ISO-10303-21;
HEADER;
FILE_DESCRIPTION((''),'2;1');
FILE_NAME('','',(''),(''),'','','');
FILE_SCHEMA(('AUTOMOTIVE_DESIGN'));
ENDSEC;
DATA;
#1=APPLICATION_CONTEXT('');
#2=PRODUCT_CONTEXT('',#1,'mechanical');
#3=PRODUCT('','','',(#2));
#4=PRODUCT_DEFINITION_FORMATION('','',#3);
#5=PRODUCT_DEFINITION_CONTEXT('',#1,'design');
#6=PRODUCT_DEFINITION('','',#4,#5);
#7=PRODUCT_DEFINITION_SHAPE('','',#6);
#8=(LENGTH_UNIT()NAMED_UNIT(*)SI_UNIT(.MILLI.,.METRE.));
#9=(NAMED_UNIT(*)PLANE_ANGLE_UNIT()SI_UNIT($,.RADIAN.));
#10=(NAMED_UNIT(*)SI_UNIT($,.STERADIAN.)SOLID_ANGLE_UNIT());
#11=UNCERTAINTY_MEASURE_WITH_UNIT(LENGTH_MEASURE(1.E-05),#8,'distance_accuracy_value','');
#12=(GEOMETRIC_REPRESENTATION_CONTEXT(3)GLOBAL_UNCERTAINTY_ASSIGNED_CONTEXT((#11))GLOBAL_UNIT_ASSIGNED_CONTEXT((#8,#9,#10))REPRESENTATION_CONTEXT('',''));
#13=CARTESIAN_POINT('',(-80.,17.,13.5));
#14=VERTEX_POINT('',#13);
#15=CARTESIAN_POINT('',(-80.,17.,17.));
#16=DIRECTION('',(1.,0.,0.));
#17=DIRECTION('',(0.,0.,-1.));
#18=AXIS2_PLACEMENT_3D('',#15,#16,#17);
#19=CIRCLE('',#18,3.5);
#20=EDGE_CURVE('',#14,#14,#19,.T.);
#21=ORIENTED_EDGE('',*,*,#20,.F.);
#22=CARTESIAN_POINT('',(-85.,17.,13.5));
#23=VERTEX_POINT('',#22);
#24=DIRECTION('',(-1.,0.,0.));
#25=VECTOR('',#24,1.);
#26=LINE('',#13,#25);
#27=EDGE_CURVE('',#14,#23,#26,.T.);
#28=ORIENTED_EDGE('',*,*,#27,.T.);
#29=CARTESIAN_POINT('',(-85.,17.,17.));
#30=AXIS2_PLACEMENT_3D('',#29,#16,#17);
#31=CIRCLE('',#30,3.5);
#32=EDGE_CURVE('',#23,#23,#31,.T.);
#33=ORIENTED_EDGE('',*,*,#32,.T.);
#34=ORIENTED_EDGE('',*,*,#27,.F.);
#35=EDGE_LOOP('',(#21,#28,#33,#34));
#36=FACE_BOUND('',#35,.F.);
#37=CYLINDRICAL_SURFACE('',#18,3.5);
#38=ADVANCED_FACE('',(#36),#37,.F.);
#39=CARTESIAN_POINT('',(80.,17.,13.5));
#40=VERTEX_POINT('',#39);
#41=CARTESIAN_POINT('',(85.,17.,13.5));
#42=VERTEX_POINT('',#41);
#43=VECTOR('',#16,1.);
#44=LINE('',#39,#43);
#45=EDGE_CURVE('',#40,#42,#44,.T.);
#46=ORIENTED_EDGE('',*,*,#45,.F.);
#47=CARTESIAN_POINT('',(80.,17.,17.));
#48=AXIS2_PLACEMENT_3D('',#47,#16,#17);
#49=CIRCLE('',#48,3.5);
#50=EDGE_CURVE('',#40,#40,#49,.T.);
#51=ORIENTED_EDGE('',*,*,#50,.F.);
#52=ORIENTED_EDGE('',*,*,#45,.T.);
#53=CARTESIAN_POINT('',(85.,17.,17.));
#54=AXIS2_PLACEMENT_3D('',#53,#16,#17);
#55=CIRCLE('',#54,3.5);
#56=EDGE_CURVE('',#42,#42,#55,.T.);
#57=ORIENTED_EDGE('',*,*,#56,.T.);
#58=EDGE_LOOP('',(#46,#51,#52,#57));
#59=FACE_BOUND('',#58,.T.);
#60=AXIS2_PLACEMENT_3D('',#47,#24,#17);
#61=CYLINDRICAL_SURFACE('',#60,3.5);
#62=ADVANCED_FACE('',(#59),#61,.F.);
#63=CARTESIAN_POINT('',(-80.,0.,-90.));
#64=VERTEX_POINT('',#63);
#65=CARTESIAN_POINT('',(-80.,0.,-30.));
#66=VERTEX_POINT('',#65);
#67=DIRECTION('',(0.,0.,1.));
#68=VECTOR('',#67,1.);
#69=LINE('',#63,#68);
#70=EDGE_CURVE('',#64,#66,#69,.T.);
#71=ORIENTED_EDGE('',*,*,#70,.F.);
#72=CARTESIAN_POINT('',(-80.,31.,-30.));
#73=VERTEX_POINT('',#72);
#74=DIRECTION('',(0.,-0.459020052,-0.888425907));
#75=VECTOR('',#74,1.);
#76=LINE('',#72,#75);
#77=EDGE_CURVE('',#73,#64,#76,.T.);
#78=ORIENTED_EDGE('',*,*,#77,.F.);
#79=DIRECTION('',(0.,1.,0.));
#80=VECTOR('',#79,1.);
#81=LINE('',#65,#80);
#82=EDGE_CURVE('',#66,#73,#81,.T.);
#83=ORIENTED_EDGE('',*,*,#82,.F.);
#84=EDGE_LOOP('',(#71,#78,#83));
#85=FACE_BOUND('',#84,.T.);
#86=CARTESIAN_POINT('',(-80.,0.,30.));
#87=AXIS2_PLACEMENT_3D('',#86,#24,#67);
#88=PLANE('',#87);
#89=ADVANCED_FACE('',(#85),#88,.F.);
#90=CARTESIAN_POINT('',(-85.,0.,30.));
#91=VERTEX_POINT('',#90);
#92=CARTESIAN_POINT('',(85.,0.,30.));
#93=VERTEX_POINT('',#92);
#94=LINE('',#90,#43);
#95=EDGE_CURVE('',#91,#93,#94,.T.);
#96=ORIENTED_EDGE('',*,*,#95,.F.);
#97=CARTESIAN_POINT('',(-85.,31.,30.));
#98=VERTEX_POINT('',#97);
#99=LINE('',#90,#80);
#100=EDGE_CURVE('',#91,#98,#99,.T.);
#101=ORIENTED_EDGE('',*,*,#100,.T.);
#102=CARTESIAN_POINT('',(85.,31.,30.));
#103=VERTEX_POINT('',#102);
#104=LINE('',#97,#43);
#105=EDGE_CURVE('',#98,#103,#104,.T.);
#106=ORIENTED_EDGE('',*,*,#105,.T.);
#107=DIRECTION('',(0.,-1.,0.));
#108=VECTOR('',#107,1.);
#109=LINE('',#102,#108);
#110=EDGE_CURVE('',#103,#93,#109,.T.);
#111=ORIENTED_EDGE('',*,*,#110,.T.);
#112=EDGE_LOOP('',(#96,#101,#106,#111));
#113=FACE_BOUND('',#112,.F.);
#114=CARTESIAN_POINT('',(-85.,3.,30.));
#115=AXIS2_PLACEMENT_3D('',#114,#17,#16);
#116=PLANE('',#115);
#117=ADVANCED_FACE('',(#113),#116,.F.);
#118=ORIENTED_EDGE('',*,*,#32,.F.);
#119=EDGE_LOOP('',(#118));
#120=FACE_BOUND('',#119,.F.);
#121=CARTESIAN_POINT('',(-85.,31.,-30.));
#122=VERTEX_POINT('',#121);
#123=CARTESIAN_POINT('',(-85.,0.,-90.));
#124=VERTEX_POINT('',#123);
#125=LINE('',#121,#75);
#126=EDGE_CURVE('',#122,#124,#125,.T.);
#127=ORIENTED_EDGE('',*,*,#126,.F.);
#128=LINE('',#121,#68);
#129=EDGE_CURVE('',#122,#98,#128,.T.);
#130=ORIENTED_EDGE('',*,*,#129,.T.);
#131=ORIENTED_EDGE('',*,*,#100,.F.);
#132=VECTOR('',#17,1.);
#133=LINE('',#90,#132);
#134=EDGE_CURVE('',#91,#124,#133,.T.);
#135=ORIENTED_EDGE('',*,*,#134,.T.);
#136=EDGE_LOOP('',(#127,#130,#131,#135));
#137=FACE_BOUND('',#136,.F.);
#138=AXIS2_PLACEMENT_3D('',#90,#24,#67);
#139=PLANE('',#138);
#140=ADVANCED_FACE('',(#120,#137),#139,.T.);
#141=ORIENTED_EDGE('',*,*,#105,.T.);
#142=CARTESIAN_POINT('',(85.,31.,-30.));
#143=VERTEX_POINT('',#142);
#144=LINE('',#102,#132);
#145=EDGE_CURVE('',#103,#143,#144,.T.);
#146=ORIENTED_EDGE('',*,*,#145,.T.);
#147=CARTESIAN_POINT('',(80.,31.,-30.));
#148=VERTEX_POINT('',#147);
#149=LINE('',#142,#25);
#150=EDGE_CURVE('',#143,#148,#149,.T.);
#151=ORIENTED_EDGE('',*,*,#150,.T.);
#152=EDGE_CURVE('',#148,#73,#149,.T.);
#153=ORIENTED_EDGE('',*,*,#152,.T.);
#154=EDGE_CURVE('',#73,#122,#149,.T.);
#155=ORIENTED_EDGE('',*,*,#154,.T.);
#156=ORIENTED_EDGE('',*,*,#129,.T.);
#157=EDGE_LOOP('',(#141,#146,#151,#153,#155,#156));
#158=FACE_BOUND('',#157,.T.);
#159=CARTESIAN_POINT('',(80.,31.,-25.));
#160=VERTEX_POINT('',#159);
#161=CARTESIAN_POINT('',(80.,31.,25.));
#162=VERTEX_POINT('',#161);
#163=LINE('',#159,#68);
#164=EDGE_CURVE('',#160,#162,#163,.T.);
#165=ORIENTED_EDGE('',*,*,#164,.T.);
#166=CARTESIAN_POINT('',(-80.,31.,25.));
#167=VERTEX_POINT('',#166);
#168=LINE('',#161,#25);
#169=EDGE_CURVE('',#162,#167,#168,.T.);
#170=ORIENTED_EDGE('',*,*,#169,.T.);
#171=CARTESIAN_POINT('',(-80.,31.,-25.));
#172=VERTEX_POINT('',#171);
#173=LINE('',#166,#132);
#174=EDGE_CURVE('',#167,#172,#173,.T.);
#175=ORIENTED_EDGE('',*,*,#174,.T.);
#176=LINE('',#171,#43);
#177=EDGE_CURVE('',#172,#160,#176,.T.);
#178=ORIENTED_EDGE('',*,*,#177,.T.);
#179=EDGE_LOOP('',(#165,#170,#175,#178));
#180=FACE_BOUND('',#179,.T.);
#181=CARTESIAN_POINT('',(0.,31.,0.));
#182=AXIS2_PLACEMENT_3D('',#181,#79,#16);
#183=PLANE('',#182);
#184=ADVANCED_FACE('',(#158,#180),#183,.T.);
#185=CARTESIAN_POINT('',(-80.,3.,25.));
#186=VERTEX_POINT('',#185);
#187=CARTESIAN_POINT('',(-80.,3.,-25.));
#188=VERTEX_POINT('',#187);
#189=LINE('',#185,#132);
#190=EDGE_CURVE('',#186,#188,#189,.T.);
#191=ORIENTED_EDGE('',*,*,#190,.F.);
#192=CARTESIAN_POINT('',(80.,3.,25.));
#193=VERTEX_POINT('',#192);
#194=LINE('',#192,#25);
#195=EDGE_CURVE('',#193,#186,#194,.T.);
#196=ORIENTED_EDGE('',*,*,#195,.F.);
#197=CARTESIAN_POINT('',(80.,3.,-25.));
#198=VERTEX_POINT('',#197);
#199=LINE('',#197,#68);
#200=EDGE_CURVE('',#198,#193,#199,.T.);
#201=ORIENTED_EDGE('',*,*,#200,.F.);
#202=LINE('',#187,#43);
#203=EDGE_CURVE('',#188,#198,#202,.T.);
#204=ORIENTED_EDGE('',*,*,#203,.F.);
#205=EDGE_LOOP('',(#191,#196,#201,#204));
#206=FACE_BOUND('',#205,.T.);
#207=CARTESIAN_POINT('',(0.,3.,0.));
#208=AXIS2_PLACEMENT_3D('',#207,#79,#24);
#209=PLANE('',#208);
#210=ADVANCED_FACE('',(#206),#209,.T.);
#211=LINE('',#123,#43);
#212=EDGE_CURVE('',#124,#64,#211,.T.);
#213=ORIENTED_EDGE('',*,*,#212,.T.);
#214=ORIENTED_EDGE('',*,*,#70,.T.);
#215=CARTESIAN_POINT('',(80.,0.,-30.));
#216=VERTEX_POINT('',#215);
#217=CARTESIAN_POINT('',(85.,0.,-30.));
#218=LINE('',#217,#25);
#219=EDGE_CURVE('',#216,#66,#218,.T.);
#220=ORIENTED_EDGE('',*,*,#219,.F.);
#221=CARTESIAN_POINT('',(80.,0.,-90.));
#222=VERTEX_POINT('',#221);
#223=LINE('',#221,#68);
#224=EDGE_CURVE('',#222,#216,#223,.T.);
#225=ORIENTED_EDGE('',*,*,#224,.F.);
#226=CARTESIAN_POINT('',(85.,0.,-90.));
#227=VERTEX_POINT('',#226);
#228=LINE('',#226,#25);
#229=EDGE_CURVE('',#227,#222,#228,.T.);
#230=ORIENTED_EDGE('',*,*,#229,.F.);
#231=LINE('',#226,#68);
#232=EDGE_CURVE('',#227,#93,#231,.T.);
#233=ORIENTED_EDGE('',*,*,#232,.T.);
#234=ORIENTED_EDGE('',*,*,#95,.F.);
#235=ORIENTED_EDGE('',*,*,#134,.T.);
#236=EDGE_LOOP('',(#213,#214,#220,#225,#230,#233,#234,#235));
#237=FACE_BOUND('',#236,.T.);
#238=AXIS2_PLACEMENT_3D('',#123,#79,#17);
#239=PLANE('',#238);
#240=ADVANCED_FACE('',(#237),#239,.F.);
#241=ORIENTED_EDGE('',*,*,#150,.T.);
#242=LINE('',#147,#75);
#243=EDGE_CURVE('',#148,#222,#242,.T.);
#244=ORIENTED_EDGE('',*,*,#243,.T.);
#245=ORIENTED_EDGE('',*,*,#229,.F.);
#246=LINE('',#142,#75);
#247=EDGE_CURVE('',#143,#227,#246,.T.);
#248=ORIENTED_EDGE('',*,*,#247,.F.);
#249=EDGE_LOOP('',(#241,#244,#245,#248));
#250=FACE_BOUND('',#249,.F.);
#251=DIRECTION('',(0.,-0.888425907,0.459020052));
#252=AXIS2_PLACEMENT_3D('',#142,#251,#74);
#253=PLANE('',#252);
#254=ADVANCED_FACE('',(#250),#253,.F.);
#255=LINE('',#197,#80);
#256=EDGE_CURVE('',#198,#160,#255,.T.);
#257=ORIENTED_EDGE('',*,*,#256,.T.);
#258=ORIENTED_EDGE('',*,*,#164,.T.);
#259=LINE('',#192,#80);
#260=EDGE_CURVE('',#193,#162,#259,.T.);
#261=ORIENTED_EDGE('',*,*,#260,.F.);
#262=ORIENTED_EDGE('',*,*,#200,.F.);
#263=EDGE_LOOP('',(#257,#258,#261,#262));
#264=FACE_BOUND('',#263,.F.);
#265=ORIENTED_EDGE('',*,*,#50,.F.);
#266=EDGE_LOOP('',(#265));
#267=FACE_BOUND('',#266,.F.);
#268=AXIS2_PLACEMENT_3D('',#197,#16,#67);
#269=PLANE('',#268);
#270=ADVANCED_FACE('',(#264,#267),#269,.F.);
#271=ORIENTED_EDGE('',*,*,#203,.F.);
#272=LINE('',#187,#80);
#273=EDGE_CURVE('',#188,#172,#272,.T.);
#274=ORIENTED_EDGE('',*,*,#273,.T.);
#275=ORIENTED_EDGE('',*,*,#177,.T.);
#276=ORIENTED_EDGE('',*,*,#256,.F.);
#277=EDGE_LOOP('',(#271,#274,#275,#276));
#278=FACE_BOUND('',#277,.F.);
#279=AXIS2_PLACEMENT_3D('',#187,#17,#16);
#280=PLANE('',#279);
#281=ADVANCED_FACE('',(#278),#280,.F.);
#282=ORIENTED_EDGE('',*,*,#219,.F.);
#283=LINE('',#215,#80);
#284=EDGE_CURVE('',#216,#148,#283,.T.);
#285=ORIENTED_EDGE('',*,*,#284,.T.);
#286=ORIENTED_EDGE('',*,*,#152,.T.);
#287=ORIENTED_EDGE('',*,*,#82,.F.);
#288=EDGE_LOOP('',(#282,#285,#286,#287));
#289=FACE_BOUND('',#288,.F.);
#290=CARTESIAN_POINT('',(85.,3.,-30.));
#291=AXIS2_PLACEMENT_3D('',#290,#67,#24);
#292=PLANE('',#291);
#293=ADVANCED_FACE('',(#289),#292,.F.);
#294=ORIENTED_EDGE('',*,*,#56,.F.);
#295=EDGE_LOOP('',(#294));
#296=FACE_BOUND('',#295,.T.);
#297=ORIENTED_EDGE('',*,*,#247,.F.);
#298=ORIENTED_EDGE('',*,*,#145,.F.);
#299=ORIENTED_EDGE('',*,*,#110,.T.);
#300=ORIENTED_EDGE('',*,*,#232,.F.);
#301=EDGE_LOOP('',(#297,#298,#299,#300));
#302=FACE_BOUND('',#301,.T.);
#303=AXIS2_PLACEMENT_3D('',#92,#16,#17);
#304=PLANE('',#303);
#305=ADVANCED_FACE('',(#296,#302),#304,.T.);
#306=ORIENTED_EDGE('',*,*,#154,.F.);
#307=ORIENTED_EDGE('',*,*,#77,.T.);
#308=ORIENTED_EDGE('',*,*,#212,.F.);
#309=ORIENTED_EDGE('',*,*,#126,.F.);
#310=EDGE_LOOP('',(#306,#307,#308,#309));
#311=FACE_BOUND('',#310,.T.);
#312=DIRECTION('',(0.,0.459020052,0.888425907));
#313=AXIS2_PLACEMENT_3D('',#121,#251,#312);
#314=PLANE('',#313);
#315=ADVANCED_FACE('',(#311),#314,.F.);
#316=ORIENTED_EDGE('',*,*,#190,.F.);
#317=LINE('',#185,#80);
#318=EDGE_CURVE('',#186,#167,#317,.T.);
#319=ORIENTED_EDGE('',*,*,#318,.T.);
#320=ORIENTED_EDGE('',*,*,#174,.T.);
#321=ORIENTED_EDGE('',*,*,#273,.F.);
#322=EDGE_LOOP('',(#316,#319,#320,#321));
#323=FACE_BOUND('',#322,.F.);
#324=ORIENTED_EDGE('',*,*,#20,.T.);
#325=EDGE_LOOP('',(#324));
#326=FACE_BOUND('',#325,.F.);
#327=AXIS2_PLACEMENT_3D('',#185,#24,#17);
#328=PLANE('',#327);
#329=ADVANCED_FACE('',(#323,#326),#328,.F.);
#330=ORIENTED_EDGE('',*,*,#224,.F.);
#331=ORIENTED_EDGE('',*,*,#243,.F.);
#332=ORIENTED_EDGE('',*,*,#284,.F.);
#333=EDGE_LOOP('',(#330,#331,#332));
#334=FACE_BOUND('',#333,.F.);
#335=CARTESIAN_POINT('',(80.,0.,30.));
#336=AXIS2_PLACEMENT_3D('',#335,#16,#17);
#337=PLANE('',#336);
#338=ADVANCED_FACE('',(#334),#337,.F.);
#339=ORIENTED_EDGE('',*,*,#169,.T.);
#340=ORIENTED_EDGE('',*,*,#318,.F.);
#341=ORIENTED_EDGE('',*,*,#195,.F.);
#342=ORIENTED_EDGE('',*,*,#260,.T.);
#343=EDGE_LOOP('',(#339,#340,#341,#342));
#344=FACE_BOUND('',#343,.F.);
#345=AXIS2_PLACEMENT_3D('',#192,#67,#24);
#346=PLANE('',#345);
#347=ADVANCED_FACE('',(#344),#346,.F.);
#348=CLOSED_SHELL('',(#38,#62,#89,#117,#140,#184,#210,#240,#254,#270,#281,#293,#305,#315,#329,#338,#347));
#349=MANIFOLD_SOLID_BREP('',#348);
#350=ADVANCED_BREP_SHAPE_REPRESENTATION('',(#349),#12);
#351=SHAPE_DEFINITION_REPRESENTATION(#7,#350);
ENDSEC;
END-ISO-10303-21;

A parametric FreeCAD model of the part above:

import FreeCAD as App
import Part
import Sketcher
from FreeCAD import Vector
Q = App.Units.Quantity


def add_polygon(sketch, points):
    """Adds a closed chain of lines whose ends are joined by coincident constraints."""
    first, n = sketch.GeometryCount, len(points)
    for a, b in zip(points, points[1:] + points[:1]):
        sketch.addGeometry(Part.LineSegment(App.Vector(*a, 0), App.Vector(*b, 0)), False)
    for i in range(n):
        sketch.addConstraint(Sketcher.Constraint("Coincident", first + i, 2, first + (i + 1) % n, 1))

doc = App.newDocument("Part")
body = doc.addObject("PartDesign::Body", "Body")

sketch1 = body.newObject("Sketcher::SketchObject", "Sketch")
sketch1.AttachmentSupport = (doc.getObject("XZ_Plane"), [""])
sketch1.MapMode = "FlatFace"
add_polygon(sketch1, [(-85, -30), (-85, 30), (85, 30), (85, -30)])
sketch1.addConstraint([
    Sketcher.Constraint("Vertical", 0),
    Sketcher.Constraint("Horizontal", 1),
    Sketcher.Constraint("Vertical", 2),
    Sketcher.Constraint("Horizontal", 3),
    Sketcher.Constraint("Symmetric", 0, 2, 2, 2, -1, 1),
    Sketcher.Constraint("DistanceX", 1, 1, 1, 2, Q("170 mm")),
    Sketcher.Constraint("DistanceY", 0, 1, 0, 2, Q("60 mm")),
])
pad1 = body.newObject("PartDesign::Pad", "Pad")
pad1.Profile = sketch1
pad1.Length = 3
pad1.Reversed = True

sketch2 = body.newObject("Sketcher::SketchObject", "Sketch001")
sketch2.AttachmentSupport = (doc.getObject("XZ_Plane"), [""])
sketch2.MapMode = "FlatFace"
sketch2.AttachmentOffset = App.Placement(Vector(0, 0, -3), App.Rotation())
add_polygon(sketch2, [(85, -30), (-85, -30), (-85, 30), (85, 30)])
add_polygon(sketch2, [(80, -25), (80, 25), (-80, 25), (-80, -25)])
sketch2.addConstraint([
    Sketcher.Constraint("Horizontal", 0),
    Sketcher.Constraint("Vertical", 1),
    Sketcher.Constraint("Horizontal", 2),
    Sketcher.Constraint("Vertical", 3),
    Sketcher.Constraint("Vertical", 4),
    Sketcher.Constraint("Horizontal", 5),
    Sketcher.Constraint("Vertical", 6),
    Sketcher.Constraint("Horizontal", 7),
    Sketcher.Constraint("Symmetric", 0, 2, 2, 2, -1, 1),
    Sketcher.Constraint("Symmetric", 4, 2, 6, 2, -1, 1),
    Sketcher.Constraint("DistanceX", 5, 2, 5, 1, Q("160 mm")),
    Sketcher.Constraint("DistanceY", 4, 1, 4, 2, Q("50 mm")),
    Sketcher.Constraint("DistanceX", 0, 2, 0, 1, Q("170 mm")),
    Sketcher.Constraint("DistanceY", 1, 1, 1, 2, Q("60 mm")),
])
pad2 = body.newObject("PartDesign::Pad", "Pad001")
pad2.Profile = sketch2
pad2.Length = 28
pad2.Reversed = True

sketch3 = body.newObject("Sketcher::SketchObject", "Sketch002")
sketch3.AttachmentSupport = (doc.getObject("YZ_Plane"), [""])
sketch3.MapMode = "FlatFace"
sketch3.AttachmentOffset = App.Placement(Vector(0, 0, -80), App.Rotation())
sketch3.addGeometry(Part.Circle(Vector(17, 17, 0), Vector(0, 0, 1), 3.5), False)
sketch3.addConstraint([
    Sketcher.Constraint("Diameter", 0, Q("7 mm")),
    Sketcher.Constraint("DistanceX", -1, 1, 0, 3, Q("17 mm")),
    Sketcher.Constraint("DistanceY", -1, 1, 0, 3, Q("17 mm")),
])
pocket1 = body.newObject("PartDesign::Pocket", "Pocket")
pocket1.Profile = sketch3
pocket1.Length = 5
doc.recompute()

mirrored = body.newObject("PartDesign::Mirrored", "Mirrored")
mirrored.Originals = [pocket1]
mirrored.MirrorPlane = (doc.getObject("YZ_Plane"), [""])
body.Tip = mirrored

sketch4 = body.newObject("Sketcher::SketchObject", "Sketch003")
sketch4.AttachmentSupport = (doc.getObject("YZ_Plane"), [""])
sketch4.MapMode = "FlatFace"
sketch4.AttachmentOffset = App.Placement(Vector(0, 0, 85), App.Rotation())
add_polygon(sketch4, [(0, -90), (31, -30), (0, -30)])
sketch4.addConstraint([
    Sketcher.Constraint("Horizontal", 1),
    Sketcher.Constraint("Vertical", 2),
    Sketcher.Constraint("PointOnObject", 1, 2, -2),
    Sketcher.Constraint("DistanceY", 2, 2, 2, 1, Q("60 mm")),
    Sketcher.Constraint("DistanceX", 1, 2, 1, 1, Q("31 mm")),
    Sketcher.Constraint("DistanceY", 0, 2, -1, 1, Q("30 mm")),
])
pad3 = body.newObject("PartDesign::Pad", "Pad002")
pad3.Profile = sketch4
pad3.Length = 5
pad3.Reversed = True
doc.recompute()

mirrored2 = body.newObject("PartDesign::Mirrored", "Mirrored001")
mirrored2.Originals = [pad3]
mirrored2.MirrorPlane = (doc.getObject("YZ_Plane"), [""])
body.Tip = mirrored2

doc.recompute()
